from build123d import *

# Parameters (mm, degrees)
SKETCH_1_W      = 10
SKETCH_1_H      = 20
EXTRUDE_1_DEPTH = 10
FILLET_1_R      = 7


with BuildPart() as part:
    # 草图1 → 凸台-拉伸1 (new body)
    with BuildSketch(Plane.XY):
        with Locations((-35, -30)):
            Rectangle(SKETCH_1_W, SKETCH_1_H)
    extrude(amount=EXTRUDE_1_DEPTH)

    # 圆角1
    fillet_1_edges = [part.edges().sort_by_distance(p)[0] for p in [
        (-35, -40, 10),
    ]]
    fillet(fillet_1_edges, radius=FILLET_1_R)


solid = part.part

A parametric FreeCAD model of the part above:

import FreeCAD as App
import Part
import Sketcher


def edges_at(feature, points):
    """Names of the edges that pass closest to the given points."""
    edges = feature.Shape.Edges
    near = lambda p: min(range(len(edges)), key=lambda i: edges[i].distToShape(Part.Vertex(*p))[0])
    return sorted({f"Edge{near(p) + 1}" for p in points})


def add_polygon(sketch, points):
    """Adds a closed chain of lines whose ends are joined by coincident constraints."""
    first, n = sketch.GeometryCount, len(points)
    for a, b in zip(points, points[1:] + points[:1]):
        sketch.addGeometry(Part.LineSegment(App.Vector(*a, 0), App.Vector(*b, 0)), False)
    for i in range(n):
        sketch.addConstraint(Sketcher.Constraint("Coincident", first + i, 2, first + (i + 1) % n, 1))

doc = App.newDocument("Part")
params = doc.addObject("Spreadsheet::Sheet", "Params")
for row, (alias, value) in enumerate([
    ("sketch1_width", "10 mm"),
    ("sketch1_height", "20 mm"),
    ("pad1_length", "10 mm"),
    ("fillet_radius", "7 mm"),
], start=1):
    params.set(f"A{row}", alias)
    params.set(f"B{row}", "=" + value)
    params.setAlias(f"B{row}", alias)

body = doc.addObject("PartDesign::Body", "Body")

# Sketch on XY plane
sketch1 = body.newObject("Sketcher::SketchObject", "Sketch")
sketch1.AttachmentSupport = (doc.getObject("XY_Plane"), [""])
sketch1.MapMode = "FlatFace"
add_polygon(sketch1, [(-40, -20), (-40, -40), (-30, -40), (-30, -20)])  # lines 0-3
sketch1.addConstraint(Sketcher.Constraint("Vertical", 0))
sketch1.addConstraint(Sketcher.Constraint("Horizontal", 1))
sketch1.addConstraint(Sketcher.Constraint("Vertical", 2))
sketch1.addConstraint(Sketcher.Constraint("Horizontal", 3))
sketch1.addConstraint(Sketcher.Constraint("DistanceX", 1, 1, 1, 2, 10.0))
sketch1.addConstraint(Sketcher.Constraint("DistanceY", 0, 2, 0, 1, 20.0))
sketch1.addConstraint(Sketcher.Constraint("DistanceX", 0, 2, -1, 1, 40.0))
sketch1.addConstraint(Sketcher.Constraint("DistanceY", 0, 2, -1, 1, 40.0))
sketch1.setExpression("Constraints[8]", "Params.sketch1_width")
sketch1.setExpression("Constraints[9]", "Params.sketch1_height")
pad1 = body.newObject("PartDesign::Pad", "Pad")
pad1.Profile = sketch1
pad1.setExpression("Length", "Params.pad1_length")
doc.recompute()

fillet = body.newObject("PartDesign::Fillet", "Fillet")
fillet.Base = (pad1, edges_at(pad1, [(-35, -40, 10)]))
fillet.setExpression("Radius", "Params.fillet_radius")

doc.recompute()
